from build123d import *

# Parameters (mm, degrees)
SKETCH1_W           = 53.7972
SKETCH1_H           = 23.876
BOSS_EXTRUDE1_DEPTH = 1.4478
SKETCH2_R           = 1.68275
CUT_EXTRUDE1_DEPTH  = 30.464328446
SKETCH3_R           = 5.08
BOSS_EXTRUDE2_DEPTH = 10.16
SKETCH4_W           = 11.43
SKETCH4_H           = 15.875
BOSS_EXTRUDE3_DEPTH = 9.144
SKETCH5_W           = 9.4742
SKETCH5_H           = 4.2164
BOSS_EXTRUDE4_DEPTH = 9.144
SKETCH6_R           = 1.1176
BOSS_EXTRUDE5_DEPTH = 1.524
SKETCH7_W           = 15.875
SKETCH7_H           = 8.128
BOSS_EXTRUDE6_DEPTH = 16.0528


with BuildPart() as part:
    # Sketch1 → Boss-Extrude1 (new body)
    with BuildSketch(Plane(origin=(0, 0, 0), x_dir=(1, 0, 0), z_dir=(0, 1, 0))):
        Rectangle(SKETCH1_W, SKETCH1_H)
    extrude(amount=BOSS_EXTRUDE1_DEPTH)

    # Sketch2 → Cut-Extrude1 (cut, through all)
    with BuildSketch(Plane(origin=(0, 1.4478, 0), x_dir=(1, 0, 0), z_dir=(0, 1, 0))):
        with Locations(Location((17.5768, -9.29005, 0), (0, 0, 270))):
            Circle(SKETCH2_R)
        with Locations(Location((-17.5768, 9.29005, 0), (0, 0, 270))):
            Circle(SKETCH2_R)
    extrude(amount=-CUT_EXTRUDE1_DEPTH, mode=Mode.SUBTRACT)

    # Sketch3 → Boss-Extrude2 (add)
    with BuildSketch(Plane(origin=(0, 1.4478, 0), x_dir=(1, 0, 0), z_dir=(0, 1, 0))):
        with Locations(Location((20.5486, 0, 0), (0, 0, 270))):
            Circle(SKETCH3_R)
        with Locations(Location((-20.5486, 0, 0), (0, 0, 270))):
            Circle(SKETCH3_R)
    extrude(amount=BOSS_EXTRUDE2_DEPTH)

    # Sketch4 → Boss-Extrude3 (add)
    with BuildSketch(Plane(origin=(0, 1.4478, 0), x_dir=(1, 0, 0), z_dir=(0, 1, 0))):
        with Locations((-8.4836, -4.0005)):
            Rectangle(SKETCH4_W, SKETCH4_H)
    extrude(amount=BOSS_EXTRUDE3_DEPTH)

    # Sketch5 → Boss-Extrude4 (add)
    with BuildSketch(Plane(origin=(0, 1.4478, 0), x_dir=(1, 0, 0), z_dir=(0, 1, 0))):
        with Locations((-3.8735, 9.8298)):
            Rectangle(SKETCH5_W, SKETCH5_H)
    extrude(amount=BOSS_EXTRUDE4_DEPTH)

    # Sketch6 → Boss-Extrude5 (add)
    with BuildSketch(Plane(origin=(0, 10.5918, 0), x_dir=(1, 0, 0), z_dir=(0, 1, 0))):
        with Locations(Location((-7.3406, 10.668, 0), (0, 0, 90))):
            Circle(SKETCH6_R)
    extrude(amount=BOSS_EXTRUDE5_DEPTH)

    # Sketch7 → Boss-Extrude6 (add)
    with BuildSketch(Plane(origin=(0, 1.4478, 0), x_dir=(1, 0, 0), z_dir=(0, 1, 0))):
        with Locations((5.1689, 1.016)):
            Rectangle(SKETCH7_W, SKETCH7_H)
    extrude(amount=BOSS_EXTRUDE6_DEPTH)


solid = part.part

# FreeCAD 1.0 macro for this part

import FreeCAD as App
import Part
import Sketcher
from FreeCAD import Vector
Q = App.Units.Quantity


def add_polygon(sketch, points):
    """Adds a closed chain of lines whose ends are joined by coincident constraints."""
    first, n = sketch.GeometryCount, len(points)
    for a, b in zip(points, points[1:] + points[:1]):
        sketch.addGeometry(Part.LineSegment(App.Vector(*a, 0), App.Vector(*b, 0)), False)
    for i in range(n):
        sketch.addConstraint(Sketcher.Constraint("Coincident", first + i, 2, first + (i + 1) % n, 1))

doc = App.newDocument("Part")
params = doc.addObject("Spreadsheet::Sheet", "Params")
for row, (alias, value) in enumerate([
    ("sketch1_height", "0.94 in"),
    ("sketch1_width", "2.118 in"),
    ("pad1_length", "0.057 in"),
    ("sketch3_diameter", "0.4 in"),
    ("pad2_length", "0.4 in"),
    ("sketch4_width", "0.45 in"),
    ("sketch4_height", "0.625 in"),
    ("pad3_length", "0.36 in"),
    ("sketch5_width", "0.373 in"),
    ("sketch5_height", "0.166 in"),
    ("pad4_length", "0.36 in"),
    ("sketch6_diameter", "0.088 in"),
    ("pad5_length", "0.06 in"),
    ("sketch7_height", "0.32 in"),
    ("sketch7_width", "0.625 in"),
    ("pad6_length", "0.632 in"),
], start=1):
    params.set(f"A{row}", alias)
    params.set(f"B{row}", "=" + value)
    params.setAlias(f"B{row}", alias)

body = doc.addObject("PartDesign::Body", "Body")

# Sketch on XZ plane
sketch1 = body.newObject("Sketcher::SketchObject", "Sketch")
sketch1.AttachmentSupport = (doc.getObject("XZ_Plane"), [""])
sketch1.MapMode = "FlatFace"
add_polygon(sketch1, [(-27, -12), (-27, 12), (27, 12), (27, -12)])  # lines 0-3
sketch1.addConstraint([
    Sketcher.Constraint("Vertical", 0),
    Sketcher.Constraint("Horizontal", 1),
    Sketcher.Constraint("Vertical", 2),
    Sketcher.Constraint("Horizontal", 3),
    Sketcher.Constraint("Symmetric", 0, 2, 2, 2, -1, 1),
    Sketcher.Constraint("DistanceY", 0, 1, 0, 2, Q("0.94 in")),
    Sketcher.Constraint("DistanceX", 1, 1, 1, 2, Q("2.118 in")),
])
sketch1.setExpression("Constraints[9]", "Params.sketch1_height")
sketch1.setExpression("Constraints[10]", "Params.sketch1_width")
pad1 = body.newObject("PartDesign::Pad", "Pad")
pad1.Profile = sketch1
pad1.setExpression("Length", "Params.pad1_length")
pad1.Reversed = True

# Sketch on XZ plane
sketch2 = body.newObject("Sketcher::SketchObject", "Sketch001")
sketch2.AttachmentSupport = (doc.getObject("XZ_Plane"), [""])
sketch2.MapMode = "FlatFace"
sketch2.AttachmentOffset = App.Placement(Vector(0, 0, -0.057 * 25.4), App.Rotation())
sketch2.addGeometry([
    Part.Circle(Vector(17.6, 9.3, 0), Vector(0, 0, 1), 1.7),
    Part.Circle(Vector(-17.6, -9.3, 0), Vector(0, 0, 1), 1.7),
], False)
sketch2.addConstraint([
    Sketcher.Constraint("Equal", 0, 1),
    Sketcher.Constraint("Symmetric", 0, 3, 1, 3, -1, 1),
    Sketcher.Constraint("Diameter", 0, Q("0.1325 in")),
    Sketcher.Constraint("DistanceX", -1, 1, 0, 3, Q("0.692 in")),
    Sketcher.Constraint("DistanceY", 1, 3, 0, 3, Q("0.7315 in")),
])
pocket1 = body.newObject("PartDesign::Pocket", "Pocket")
pocket1.Profile = sketch2
pocket1.Type = "ThroughAll"
pocket1.Reversed = True

# Sketch on XZ plane
sketch3 = body.newObject("Sketcher::SketchObject", "Sketch002")
sketch3.AttachmentSupport = (doc.getObject("XZ_Plane"), [""])
sketch3.MapMode = "FlatFace"
sketch3.AttachmentOffset = App.Placement(Vector(0, 0, -0.057 * 25.4), App.Rotation())
sketch3.addGeometry([
    Part.Circle(Vector(21, 0, 0), Vector(0, 0, 1), 5),
    Part.Circle(Vector(-21, 0, 0), Vector(0, 0, 1), 5),
], False)
sketch3.addConstraint([
    Sketcher.Constraint("Equal", 0, 1),
    Sketcher.Constraint("Symmetric", 0, 3, 1, 3, -1, 1),
    Sketcher.Constraint("PointOnObject", 0, 3, -1),
    Sketcher.Constraint("Diameter", 0, Q("0.4 in")),
    Sketcher.Constraint("DistanceX", -1, 1, 0, 3, Q("0.809 in")),
])
sketch3.setExpression("Constraints[3]", "Params.sketch3_diameter")
pad2 = body.newObject("PartDesign::Pad", "Pad001")
pad2.Profile = sketch3
pad2.setExpression("Length", "Params.pad2_length")
pad2.Reversed = True

# Sketch on XZ plane
sketch4 = body.newObject("Sketcher::SketchObject", "Sketch003")
sketch4.AttachmentSupport = (doc.getObject("XZ_Plane"), [""])
sketch4.MapMode = "FlatFace"
sketch4.AttachmentOffset = App.Placement(Vector(0, 0, -0.057 * 25.4), App.Rotation())
add_polygon(sketch4, [(-14, -4), (-14, 12), (-3, 12), (-3, -4)])  # lines 0-3
sketch4.addConstraint([
    Sketcher.Constraint("Vertical", 0),
    Sketcher.Constraint("Horizontal", 1),
    Sketcher.Constraint("Vertical", 2),
    Sketcher.Constraint("Horizontal", 3),
    Sketcher.Constraint("DistanceX", 1, 1, 1, 2, Q("0.45 in")),
    Sketcher.Constraint("DistanceY", 0, 1, 0, 2, Q("0.625 in")),
    Sketcher.Constraint("DistanceY", -1, 1, 0, 2, Q("0.47 in")),
    Sketcher.Constraint("DistanceX", 0, 2, -1, 1, Q("0.559 in")),
])
sketch4.setExpression("Constraints[8]", "Params.sketch4_width")
sketch4.setExpression("Constraints[9]", "Params.sketch4_height")
pad3 = body.newObject("PartDesign::Pad", "Pad002")
pad3.Profile = sketch4
pad3.setExpression("Length", "Params.pad3_length")
pad3.Reversed = True

# Sketch on XZ plane
sketch5 = body.newObject("Sketcher::SketchObject", "Sketch004")
sketch5.AttachmentSupport = (doc.getObject("XZ_Plane"), [""])
sketch5.MapMode = "FlatFace"
sketch5.AttachmentOffset = App.Placement(Vector(0, 0, -0.057 * 25.4), App.Rotation())
add_polygon(sketch5, [(-8.6, -11.9), (-8.6, -7.7), (0.9, -7.7), (0.9, -11.9)])  # lines 0-3
sketch5.addConstraint([
    Sketcher.Constraint("Vertical", 0),
    Sketcher.Constraint("Horizontal", 1),
    Sketcher.Constraint("Vertical", 2),
    Sketcher.Constraint("Horizontal", 3),
    Sketcher.Constraint("DistanceX", 1, 1, 1, 2, Q("0.373 in")),
    Sketcher.Constraint("DistanceY", 0, 1, 0, 2, Q("0.166 in")),
    Sketcher.Constraint("DistanceY", 2, 2, -1, 1, Q("0.47 in")),
    Sketcher.Constraint("DistanceX", 0, 2, -1, 1, Q("0.339 in")),
])
sketch5.setExpression("Constraints[8]", "Params.sketch5_width")
sketch5.setExpression("Constraints[9]", "Params.sketch5_height")
pad4 = body.newObject("PartDesign::Pad", "Pad003")
pad4.Profile = sketch5
pad4.setExpression("Length", "Params.pad4_length")
pad4.Reversed = True

# Sketch on XZ plane
sketch6 = body.newObject("Sketcher::SketchObject", "Sketch005")
sketch6.AttachmentSupport = (doc.getObject("XZ_Plane"), [""])
sketch6.MapMode = "FlatFace"
sketch6.AttachmentOffset = App.Placement(Vector(0, 0, -0.417 * 25.4), App.Rotation())
sketch6.addGeometry(Part.Circle(Vector(-7.3, -10.7, 0), Vector(0, 0, 1), 1.1), False)
sketch6.addConstraint([
    Sketcher.Constraint("Diameter", 0, Q("0.088 in")),
    Sketcher.Constraint("DistanceY", 0, 3, -1, 1, Q("0.42 in")),
    Sketcher.Constraint("DistanceX", 0, 3, -1, 1, Q("0.289 in")),
])
sketch6.setExpression("Constraints[0]", "Params.sketch6_diameter")
pad5 = body.newObject("PartDesign::Pad", "Pad004")
pad5.Profile = sketch6
pad5.setExpression("Length", "Params.pad5_length")
pad5.Reversed = True

# Sketch on XZ plane
sketch7 = body.newObject("Sketcher::SketchObject", "Sketch006")
sketch7.AttachmentSupport = (doc.getObject("XZ_Plane"), [""])
sketch7.MapMode = "FlatFace"
sketch7.AttachmentOffset = App.Placement(Vector(0, 0, -0.057 * 25.4), App.Rotation())
add_polygon(sketch7, [(-3, -5), (-3, 3), (13, 3), (13, -5)])  # lines 0-3
sketch7.addConstraint([
    Sketcher.Constraint("Vertical", 0),
    Sketcher.Constraint("Horizontal", 1),
    Sketcher.Constraint("Vertical", 2),
    Sketcher.Constraint("Horizontal", 3),
    Sketcher.Constraint("DistanceY", 0, 1, 0, 2, Q("0.32 in")),
    Sketcher.Constraint("DistanceY", 2, 2, -1, 1, Q("0.2 in")),
    Sketcher.Constraint("DistanceX", 1, 1, 1, 2, Q("0.625 in")),
    Sketcher.Constraint("DistanceX", 0, 2, -1, 1, Q("0.109 in")),
])
sketch7.setExpression("Constraints[8]", "Params.sketch7_height")
sketch7.setExpression("Constraints[10]", "Params.sketch7_width")
pad6 = body.newObject("PartDesign::Pad", "Pad005")
pad6.Profile = sketch7
pad6.setExpression("Length", "Params.pad6_length")
pad6.Reversed = True

doc.recompute()
